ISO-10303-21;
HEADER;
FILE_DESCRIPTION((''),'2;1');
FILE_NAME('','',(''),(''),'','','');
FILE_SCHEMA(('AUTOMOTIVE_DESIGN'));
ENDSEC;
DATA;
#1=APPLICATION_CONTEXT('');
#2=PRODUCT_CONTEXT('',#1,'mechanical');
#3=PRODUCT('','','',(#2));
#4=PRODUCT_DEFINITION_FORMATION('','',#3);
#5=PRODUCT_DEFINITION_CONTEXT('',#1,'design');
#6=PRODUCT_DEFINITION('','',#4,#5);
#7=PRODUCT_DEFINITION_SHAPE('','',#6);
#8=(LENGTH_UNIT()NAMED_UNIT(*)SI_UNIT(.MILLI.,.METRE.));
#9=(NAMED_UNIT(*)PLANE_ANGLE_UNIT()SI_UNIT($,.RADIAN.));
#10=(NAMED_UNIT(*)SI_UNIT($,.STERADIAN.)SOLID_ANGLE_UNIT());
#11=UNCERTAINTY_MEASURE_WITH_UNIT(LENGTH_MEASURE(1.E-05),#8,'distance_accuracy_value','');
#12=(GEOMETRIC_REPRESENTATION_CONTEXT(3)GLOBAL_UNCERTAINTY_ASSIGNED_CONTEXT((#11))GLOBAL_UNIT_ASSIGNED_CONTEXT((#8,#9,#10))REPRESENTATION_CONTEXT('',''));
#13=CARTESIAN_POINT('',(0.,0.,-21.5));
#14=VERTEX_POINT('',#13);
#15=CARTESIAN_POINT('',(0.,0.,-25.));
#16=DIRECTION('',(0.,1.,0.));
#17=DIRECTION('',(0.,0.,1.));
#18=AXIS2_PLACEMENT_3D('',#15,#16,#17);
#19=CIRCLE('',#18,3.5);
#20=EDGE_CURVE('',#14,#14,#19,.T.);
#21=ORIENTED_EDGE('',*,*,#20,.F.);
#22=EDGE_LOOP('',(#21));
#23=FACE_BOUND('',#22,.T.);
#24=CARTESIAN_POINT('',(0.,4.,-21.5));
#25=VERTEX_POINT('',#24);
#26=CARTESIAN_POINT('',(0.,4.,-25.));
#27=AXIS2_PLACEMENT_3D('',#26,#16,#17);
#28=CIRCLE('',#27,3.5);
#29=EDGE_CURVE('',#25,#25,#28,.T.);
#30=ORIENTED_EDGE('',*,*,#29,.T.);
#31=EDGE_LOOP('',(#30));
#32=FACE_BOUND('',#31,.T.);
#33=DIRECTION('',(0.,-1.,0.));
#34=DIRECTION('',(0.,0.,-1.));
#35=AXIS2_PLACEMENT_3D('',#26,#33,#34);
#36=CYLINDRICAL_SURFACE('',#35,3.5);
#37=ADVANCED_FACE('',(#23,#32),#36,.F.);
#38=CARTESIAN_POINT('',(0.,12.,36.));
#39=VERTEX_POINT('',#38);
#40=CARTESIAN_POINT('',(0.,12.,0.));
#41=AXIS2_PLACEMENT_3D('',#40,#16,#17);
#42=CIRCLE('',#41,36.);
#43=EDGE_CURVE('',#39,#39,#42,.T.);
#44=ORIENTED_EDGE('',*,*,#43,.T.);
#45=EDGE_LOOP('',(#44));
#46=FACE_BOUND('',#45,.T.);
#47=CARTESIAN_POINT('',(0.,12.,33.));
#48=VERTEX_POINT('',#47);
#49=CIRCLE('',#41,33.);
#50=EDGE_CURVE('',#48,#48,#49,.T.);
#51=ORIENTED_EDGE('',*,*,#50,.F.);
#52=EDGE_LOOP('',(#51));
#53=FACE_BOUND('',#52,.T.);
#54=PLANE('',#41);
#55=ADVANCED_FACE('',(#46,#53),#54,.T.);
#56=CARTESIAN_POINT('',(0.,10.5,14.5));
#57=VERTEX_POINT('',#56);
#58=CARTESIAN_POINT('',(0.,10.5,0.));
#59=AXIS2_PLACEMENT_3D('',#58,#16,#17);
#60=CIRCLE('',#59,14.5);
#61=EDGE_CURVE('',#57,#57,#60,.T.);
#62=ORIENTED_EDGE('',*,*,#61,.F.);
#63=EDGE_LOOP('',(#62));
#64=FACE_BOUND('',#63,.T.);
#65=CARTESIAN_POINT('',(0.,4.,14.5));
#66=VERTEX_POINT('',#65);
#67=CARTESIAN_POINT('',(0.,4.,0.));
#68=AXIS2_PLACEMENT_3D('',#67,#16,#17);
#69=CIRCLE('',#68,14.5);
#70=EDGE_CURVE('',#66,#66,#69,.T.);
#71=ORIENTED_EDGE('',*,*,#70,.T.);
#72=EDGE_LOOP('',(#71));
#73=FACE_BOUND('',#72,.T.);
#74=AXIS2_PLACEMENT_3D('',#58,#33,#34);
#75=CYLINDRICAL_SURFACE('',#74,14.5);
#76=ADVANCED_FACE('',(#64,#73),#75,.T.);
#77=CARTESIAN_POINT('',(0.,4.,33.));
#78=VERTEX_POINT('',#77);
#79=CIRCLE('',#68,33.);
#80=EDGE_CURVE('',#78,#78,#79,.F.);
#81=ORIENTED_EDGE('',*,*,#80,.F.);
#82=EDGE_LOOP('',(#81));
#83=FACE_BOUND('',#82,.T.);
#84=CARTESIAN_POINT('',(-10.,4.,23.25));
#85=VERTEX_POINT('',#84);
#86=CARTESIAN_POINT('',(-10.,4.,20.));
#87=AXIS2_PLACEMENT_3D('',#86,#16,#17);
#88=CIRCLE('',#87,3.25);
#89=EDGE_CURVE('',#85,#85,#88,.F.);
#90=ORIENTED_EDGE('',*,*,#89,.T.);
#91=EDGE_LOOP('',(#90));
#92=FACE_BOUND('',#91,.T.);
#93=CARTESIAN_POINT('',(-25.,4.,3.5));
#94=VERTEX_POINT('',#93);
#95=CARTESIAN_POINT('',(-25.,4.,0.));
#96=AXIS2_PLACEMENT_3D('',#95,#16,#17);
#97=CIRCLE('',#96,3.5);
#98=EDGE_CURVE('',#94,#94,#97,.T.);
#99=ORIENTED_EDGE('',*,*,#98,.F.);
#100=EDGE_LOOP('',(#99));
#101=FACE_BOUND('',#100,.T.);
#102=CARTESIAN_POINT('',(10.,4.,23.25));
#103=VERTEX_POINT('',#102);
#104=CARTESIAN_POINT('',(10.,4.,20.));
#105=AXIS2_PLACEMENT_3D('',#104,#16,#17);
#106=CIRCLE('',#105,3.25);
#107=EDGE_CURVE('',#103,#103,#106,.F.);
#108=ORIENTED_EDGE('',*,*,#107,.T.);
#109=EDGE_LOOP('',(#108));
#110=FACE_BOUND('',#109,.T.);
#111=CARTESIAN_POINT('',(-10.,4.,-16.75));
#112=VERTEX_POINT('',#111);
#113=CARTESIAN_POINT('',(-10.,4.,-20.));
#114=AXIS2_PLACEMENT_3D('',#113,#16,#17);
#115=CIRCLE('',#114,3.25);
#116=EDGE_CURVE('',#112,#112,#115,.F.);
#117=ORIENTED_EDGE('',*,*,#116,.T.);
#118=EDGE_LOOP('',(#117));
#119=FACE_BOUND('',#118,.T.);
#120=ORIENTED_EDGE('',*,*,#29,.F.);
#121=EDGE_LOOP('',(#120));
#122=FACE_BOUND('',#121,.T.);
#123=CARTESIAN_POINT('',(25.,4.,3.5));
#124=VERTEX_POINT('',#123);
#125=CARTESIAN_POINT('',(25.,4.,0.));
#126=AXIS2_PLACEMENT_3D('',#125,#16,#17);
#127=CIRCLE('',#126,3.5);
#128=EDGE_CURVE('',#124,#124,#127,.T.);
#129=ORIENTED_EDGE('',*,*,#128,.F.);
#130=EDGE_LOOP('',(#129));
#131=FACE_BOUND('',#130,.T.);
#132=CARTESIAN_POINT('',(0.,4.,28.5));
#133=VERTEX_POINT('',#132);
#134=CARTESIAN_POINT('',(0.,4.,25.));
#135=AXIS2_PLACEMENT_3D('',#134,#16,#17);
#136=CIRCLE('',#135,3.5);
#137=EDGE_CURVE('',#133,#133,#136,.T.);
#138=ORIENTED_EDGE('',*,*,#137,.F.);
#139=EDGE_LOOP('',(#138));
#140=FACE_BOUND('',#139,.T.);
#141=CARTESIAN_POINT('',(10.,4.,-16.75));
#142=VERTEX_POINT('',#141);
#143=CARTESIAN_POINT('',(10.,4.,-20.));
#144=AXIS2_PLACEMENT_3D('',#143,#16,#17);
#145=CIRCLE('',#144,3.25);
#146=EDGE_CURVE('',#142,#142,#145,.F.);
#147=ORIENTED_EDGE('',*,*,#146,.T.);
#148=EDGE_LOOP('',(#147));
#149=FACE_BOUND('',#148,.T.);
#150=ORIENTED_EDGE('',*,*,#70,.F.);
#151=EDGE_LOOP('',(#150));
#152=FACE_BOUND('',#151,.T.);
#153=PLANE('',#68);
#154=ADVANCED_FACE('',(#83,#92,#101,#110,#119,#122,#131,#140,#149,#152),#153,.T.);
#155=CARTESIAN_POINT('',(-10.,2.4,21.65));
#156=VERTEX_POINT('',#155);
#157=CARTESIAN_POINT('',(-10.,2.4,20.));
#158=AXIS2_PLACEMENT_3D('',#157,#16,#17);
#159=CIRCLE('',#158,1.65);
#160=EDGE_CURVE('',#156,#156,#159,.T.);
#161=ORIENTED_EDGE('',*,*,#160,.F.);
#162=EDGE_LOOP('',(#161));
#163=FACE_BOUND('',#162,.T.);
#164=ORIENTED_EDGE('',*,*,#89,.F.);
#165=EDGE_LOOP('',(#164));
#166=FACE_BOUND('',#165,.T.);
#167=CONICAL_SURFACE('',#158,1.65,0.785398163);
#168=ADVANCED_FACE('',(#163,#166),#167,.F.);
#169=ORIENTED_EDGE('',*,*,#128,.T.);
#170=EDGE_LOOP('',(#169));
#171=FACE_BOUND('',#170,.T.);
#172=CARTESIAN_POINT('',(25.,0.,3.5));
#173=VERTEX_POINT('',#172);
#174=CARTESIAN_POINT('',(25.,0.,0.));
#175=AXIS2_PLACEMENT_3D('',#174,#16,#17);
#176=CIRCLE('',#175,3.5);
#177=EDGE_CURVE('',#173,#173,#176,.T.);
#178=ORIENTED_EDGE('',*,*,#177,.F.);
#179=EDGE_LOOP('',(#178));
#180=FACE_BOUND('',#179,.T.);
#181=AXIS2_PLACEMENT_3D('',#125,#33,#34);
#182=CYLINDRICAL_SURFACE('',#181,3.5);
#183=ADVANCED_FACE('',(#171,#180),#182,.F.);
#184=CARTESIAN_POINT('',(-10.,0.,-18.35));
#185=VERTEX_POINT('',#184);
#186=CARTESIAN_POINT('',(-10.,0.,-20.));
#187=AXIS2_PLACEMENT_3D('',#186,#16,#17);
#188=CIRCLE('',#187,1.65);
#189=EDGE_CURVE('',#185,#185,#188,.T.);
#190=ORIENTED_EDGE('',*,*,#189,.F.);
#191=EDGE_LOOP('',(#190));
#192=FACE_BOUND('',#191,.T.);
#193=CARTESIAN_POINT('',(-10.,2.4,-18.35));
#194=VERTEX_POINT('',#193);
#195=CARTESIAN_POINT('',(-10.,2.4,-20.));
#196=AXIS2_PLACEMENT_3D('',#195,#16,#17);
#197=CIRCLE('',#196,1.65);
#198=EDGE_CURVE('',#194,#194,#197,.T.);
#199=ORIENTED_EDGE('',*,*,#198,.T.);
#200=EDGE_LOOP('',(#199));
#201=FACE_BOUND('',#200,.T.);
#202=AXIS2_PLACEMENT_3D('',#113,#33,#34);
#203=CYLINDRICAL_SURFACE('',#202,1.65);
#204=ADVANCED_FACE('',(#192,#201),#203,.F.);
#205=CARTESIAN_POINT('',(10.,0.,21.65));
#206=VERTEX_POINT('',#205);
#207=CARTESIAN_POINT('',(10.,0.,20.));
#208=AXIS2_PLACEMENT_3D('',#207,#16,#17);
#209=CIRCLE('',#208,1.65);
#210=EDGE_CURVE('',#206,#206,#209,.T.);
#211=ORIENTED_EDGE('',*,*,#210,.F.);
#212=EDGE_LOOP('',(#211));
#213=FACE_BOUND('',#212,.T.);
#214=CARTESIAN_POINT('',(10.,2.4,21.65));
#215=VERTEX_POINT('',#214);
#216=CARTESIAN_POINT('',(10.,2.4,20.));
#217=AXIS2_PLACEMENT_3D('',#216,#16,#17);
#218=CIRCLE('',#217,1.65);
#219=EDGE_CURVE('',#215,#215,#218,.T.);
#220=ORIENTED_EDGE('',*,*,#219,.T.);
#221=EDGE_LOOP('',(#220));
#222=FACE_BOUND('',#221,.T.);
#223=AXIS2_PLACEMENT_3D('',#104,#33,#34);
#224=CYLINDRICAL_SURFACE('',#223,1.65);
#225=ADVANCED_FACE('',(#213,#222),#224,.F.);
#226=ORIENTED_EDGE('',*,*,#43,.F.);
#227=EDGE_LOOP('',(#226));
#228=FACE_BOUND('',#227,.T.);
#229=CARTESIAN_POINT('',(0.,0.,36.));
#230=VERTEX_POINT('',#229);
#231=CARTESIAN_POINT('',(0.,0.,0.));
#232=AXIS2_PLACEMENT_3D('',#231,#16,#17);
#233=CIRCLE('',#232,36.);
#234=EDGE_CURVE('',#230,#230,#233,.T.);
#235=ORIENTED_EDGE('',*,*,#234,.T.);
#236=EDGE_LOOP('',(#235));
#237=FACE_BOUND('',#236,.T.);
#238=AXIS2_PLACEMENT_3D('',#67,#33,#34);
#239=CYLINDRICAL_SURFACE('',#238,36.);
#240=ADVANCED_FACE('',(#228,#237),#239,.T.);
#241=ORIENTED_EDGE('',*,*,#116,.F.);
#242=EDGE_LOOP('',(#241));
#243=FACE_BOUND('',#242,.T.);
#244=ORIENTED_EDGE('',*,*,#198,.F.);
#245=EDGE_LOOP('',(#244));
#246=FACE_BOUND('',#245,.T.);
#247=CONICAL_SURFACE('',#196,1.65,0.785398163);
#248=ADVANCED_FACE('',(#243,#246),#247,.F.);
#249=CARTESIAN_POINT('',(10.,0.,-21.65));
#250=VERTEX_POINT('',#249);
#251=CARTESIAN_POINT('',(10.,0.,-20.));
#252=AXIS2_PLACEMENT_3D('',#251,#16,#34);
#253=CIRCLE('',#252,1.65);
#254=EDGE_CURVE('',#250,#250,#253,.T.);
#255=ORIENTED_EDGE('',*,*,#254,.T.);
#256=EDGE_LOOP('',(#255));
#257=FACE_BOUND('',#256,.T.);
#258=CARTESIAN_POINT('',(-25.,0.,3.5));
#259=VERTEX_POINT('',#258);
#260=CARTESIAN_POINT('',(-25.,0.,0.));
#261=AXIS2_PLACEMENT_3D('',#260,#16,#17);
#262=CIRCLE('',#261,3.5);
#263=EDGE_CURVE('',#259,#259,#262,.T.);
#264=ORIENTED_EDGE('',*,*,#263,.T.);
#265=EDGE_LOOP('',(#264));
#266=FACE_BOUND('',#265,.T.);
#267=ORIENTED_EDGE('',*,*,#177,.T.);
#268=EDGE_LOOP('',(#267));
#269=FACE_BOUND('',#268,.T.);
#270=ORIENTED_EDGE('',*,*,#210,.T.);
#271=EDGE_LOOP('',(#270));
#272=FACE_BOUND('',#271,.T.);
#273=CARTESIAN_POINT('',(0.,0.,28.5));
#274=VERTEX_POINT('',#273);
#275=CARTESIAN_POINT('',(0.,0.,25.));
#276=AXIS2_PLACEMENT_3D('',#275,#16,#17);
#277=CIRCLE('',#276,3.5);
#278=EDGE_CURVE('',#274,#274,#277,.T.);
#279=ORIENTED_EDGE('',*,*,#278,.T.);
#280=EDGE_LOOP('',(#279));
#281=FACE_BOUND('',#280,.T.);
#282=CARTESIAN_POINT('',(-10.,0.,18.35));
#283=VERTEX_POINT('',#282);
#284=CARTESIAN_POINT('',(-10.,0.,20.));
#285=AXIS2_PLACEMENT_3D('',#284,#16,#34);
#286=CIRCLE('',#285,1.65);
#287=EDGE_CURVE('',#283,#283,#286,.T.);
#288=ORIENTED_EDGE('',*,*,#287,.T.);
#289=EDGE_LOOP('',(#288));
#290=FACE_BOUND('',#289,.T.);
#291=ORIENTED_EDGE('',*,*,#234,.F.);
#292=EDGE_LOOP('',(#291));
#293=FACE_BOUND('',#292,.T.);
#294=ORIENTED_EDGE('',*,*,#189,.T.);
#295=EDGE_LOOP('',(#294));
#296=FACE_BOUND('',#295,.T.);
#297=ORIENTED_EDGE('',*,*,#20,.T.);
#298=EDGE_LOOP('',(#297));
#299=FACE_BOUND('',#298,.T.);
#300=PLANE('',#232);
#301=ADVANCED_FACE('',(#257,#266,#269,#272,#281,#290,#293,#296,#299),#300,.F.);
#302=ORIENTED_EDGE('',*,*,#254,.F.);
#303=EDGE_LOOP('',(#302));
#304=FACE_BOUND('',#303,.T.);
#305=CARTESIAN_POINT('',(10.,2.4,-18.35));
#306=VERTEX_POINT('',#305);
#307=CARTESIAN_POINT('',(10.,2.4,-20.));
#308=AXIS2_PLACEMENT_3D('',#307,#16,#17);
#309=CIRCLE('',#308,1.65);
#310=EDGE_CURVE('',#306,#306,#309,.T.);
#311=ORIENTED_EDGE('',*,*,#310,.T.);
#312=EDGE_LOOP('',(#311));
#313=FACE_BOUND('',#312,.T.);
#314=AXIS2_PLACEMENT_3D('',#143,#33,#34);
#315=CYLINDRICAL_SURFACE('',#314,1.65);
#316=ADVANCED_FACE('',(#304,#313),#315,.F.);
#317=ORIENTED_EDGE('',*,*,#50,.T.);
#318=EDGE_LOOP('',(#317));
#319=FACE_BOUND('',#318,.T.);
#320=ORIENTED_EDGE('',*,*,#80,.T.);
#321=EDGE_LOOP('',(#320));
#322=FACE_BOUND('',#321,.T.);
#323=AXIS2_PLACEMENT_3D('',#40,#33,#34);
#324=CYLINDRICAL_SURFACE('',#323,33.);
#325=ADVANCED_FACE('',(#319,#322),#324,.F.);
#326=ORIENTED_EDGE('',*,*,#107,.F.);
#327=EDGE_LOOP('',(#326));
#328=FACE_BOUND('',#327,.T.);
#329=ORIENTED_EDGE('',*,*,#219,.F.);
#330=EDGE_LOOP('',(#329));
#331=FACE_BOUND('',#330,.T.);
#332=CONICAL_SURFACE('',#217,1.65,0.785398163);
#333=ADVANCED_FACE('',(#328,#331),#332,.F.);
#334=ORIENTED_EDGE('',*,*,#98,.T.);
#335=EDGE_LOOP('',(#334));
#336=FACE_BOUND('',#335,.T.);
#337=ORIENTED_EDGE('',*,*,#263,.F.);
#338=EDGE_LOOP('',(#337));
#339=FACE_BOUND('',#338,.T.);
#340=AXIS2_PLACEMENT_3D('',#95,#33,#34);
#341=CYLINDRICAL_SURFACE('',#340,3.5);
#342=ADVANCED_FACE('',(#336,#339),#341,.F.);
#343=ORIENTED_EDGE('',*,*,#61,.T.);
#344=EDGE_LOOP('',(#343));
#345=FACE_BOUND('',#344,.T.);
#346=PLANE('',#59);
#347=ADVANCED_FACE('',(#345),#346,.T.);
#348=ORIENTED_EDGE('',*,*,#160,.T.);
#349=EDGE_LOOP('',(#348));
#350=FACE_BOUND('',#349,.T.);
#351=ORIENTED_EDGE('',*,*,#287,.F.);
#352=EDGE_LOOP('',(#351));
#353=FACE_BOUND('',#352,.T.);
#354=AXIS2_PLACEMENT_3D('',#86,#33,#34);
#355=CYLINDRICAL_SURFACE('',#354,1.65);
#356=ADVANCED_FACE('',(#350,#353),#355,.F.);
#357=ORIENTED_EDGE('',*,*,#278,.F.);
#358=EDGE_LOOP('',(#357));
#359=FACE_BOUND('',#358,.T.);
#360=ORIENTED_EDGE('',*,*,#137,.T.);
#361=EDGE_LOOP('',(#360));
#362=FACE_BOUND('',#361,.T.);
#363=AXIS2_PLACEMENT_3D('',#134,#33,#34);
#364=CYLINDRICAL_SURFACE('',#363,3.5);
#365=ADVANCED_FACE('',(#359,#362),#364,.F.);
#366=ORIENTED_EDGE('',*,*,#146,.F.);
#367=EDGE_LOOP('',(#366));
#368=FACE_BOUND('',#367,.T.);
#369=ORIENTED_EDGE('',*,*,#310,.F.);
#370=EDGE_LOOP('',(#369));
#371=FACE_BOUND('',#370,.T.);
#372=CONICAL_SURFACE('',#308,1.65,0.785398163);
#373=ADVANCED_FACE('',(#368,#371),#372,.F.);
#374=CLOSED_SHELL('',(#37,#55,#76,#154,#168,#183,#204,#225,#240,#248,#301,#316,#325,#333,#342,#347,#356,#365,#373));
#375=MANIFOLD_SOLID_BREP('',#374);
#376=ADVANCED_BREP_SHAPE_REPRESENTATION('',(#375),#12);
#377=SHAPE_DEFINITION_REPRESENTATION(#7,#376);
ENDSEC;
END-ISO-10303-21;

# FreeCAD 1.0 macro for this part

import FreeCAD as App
import Part
import Sketcher
from FreeCAD import Vector


def edges_at(feature, points):
    """Names of the edges that pass closest to the given points."""
    edges = feature.Shape.Edges
    near = lambda p: min(range(len(edges)), key=lambda i: edges[i].distToShape(Part.Vertex(*p))[0])
    return sorted({f"Edge{near(p) + 1}" for p in points})

doc = App.newDocument("Part")
body = doc.addObject("PartDesign::Body", "Body")

sketch1 = body.newObject("Sketcher::SketchObject", "Sketch")
sketch1.AttachmentSupport = (doc.getObject("XZ_Plane"), [""])
sketch1.MapMode = "FlatFace"
sketch1.addGeometry([
    Part.Circle(Vector(0, 0, 0), Vector(0, 0, 1), 36),
    Part.Circle(Vector(-10, 20, 0), Vector(0, 0, 1), 1.65),
    Part.Circle(Vector(0, 25, 0), Vector(0, 0, 1), 3.5),
    Part.Circle(Vector(10, 20, 0), Vector(0, 0, 1), 1.65),
    Part.Circle(Vector(-25, 0, 0), Vector(0, 0, 1), 3.5),
    Part.Circle(Vector(-10, -20, 0), Vector(0, 0, 1), 1.65),
    Part.Circle(Vector(25, 0, 0), Vector(0, 0, 1), 3.5),
    Part.Circle(Vector(10, -20, 0), Vector(0, 0, 1), 1.65),
    Part.Circle(Vector(0, -25, 0), Vector(0, 0, 1), 3.5),
], False)
sketch1.addConstraint([
    Sketcher.Constraint("Coincident", 0, 3, -1, 1),
    Sketcher.Constraint("Equal", 1, 3),
    Sketcher.Constraint("Equal", 2, 4),
    Sketcher.Constraint("Equal", 3, 5),
    Sketcher.Constraint("Equal", 4, 6),
    Sketcher.Constraint("Equal", 5, 7),
    Sketcher.Constraint("Equal", 6, 8),
    Sketcher.Constraint("Symmetric", 3, 3, 5, 3, -1, 1),
    Sketcher.Constraint("Symmetric", 4, 3, 6, 3, -1, 1),
    Sketcher.Constraint("Symmetric", 1, 3, 7, 3, -1, 1),
    Sketcher.Constraint("Symmetric", 2, 3, 8, 3, -1, 1),
    Sketcher.Constraint("Symmetric", 1, 3, 3, 3, -2),
    Sketcher.Constraint("PointOnObject", 2, 3, -2),
    Sketcher.Constraint("PointOnObject", 4, 3, -1),
    Sketcher.Constraint("Diameter", 0, 72.0),
    Sketcher.Constraint("Diameter", 2, 7.0),
    Sketcher.Constraint("Diameter", 1, 3.3),
    Sketcher.Constraint("DistanceX", 1, 3, -1, 1, 10.0),
    Sketcher.Constraint("DistanceY", -1, 1, 1, 3, 20.0),
    Sketcher.Constraint("DistanceY", -1, 1, 2, 3, 25.0),
    Sketcher.Constraint("DistanceX", 4, 3, -1, 1, 25.0),
])
pad1 = body.newObject("PartDesign::Pad", "Pad")
pad1.Profile = sketch1
pad1.Length = 4
pad1.Reversed = True

sketch2 = body.newObject("Sketcher::SketchObject", "Sketch001")
sketch2.AttachmentSupport = (doc.getObject("XZ_Plane"), [""])
sketch2.MapMode = "FlatFace"
sketch2.AttachmentOffset = App.Placement(Vector(0, 0, -4), App.Rotation())
sketch2.addGeometry(Part.Circle(Vector(0, 0, 0), Vector(0, 0, 1), 14.5), False)
sketch2.addConstraint([
    Sketcher.Constraint("Coincident", 0, 3, -1, 1),
    Sketcher.Constraint("Diameter", 0, 29.0),
])
pad2 = body.newObject("PartDesign::Pad", "Pad001")
pad2.Profile = sketch2
pad2.Length = 6.5
pad2.Reversed = True

sketch3 = body.newObject("Sketcher::SketchObject", "Sketch002")
sketch3.AttachmentSupport = (doc.getObject("XZ_Plane"), [""])
sketch3.MapMode = "FlatFace"
sketch3.AttachmentOffset = App.Placement(Vector(0, 0, -4), App.Rotation())
sketch3.addGeometry([
    Part.Circle(Vector(0, 0, 0), Vector(0, 0, 1), 36),
    Part.Circle(Vector(0, 0, 0), Vector(0, 0, 1), 33),
], False)
sketch3.addConstraint([
    Sketcher.Constraint("Coincident", 0, 3, -1, 1),
    Sketcher.Constraint("Coincident", 1, 3, -1, 1),
    Sketcher.Constraint("Diameter", 0, 72.0),
    Sketcher.Constraint("Diameter", 1, 66.0),
])
pad3 = body.newObject("PartDesign::Pad", "Pad002")
pad3.Profile = sketch3
pad3.Length = 8
pad3.Reversed = True
doc.recompute()

chamfer = body.newObject("PartDesign::Chamfer", "Chamfer")
chamfer.Base = (pad3, edges_at(pad3, [
    (8.35, 4, -20),
    (8.35, 4, 20),
    (-11.65, 4, 20),
    (-11.65, 4, -20),
]))
chamfer.Size = 1.6

doc.recompute()
